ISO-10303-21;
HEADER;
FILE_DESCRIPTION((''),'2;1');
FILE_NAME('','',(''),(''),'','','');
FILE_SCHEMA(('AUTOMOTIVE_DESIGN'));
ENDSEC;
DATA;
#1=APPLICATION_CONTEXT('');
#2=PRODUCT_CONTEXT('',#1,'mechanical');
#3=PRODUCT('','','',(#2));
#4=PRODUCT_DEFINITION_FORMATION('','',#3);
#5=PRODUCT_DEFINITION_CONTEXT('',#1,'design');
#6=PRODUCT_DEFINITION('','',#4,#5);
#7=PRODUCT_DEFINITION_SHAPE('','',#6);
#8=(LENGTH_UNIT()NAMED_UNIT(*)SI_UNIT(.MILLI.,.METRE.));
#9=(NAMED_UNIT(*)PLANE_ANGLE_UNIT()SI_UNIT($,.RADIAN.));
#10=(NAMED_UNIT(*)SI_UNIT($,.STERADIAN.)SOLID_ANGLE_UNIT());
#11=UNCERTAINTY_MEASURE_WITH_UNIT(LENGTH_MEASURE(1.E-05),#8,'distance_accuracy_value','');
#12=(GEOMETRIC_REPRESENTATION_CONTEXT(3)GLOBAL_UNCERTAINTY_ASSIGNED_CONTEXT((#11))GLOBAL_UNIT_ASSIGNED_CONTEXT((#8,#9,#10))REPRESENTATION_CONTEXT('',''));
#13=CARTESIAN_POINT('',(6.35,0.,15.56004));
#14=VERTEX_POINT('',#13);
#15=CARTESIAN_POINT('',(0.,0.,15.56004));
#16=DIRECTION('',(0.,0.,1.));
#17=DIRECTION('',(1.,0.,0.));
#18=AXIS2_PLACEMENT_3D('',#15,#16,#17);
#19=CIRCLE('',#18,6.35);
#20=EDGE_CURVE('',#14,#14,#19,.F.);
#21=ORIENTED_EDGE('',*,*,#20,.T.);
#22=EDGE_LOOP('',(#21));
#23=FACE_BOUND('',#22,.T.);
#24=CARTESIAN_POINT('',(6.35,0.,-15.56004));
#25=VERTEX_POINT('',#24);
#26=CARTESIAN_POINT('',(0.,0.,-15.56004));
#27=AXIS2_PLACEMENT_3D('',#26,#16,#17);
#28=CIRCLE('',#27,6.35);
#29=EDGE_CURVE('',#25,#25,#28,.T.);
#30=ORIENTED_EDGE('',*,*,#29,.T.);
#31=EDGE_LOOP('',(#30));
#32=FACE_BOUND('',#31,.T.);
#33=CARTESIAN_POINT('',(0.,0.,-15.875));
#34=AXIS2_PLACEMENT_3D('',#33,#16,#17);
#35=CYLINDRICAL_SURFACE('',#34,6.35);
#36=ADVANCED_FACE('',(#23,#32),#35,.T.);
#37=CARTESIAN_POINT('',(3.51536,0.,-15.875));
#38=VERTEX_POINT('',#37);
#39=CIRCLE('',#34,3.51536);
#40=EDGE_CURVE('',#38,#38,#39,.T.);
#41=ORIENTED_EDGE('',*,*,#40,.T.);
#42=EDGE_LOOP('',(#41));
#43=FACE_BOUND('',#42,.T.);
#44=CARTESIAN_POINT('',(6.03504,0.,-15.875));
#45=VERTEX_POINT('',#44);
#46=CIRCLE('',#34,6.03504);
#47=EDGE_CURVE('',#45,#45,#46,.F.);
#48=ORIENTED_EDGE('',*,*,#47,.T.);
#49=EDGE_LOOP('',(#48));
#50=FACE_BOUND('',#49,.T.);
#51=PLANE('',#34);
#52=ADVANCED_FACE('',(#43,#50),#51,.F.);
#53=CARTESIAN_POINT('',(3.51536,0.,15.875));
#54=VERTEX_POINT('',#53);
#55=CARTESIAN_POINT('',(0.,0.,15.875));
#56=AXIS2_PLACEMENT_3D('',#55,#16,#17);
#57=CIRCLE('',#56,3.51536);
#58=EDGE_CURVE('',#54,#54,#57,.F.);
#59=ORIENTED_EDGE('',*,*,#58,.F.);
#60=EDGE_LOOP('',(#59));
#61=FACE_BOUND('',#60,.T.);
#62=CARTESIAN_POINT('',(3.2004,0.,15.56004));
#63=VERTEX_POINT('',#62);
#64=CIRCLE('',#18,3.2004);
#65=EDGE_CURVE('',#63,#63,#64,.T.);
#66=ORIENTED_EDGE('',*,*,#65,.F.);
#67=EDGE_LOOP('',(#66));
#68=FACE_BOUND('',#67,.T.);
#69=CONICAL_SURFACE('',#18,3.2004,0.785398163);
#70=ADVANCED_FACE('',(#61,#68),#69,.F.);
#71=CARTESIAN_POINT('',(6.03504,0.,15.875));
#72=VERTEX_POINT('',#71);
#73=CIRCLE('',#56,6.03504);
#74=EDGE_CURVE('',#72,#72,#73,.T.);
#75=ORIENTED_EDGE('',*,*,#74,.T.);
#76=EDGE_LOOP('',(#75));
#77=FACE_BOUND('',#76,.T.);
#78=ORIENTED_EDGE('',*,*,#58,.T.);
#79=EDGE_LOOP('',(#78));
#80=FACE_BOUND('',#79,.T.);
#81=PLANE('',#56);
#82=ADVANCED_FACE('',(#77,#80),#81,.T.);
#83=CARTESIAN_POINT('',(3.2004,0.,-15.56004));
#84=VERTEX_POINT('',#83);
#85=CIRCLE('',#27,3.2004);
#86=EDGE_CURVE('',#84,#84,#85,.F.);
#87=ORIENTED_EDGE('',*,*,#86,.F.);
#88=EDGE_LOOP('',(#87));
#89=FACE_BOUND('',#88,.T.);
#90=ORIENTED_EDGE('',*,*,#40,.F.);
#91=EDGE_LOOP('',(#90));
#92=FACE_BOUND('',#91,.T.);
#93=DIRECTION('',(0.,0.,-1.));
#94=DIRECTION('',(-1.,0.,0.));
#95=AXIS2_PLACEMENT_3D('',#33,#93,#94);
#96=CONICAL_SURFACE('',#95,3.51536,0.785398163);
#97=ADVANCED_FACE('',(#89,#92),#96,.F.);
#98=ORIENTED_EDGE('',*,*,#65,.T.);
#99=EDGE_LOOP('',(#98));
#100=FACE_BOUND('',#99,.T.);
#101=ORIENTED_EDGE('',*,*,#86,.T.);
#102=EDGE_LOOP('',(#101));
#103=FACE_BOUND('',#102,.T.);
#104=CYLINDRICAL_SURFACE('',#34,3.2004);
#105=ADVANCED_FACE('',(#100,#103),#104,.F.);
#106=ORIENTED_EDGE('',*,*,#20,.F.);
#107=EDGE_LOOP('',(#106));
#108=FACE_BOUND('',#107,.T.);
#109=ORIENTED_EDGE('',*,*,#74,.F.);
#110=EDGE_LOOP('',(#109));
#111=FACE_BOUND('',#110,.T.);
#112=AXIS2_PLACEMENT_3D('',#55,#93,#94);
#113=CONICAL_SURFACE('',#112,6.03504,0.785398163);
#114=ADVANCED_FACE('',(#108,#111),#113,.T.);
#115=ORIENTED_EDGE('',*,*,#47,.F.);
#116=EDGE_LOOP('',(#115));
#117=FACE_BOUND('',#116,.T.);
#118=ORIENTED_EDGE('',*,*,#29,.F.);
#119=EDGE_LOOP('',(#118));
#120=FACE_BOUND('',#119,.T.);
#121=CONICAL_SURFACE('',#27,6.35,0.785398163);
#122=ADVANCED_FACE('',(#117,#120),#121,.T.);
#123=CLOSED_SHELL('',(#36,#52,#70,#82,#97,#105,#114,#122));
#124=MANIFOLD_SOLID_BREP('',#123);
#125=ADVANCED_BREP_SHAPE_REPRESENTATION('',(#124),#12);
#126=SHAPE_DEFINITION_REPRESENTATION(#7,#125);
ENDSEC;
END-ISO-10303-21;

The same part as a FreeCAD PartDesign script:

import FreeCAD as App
import Part
import Sketcher

V = App.Vector
Q = App.Units.Quantity


def edges_at(feature, points):
    """Names of the edges that pass closest to the given points."""
    edges = feature.Shape.Edges
    near = lambda p: min(range(len(edges)), key=lambda i: edges[i].distToShape(Part.Vertex(*p))[0])
    return sorted({f"Edge{near(p) + 1}" for p in points})

doc = App.newDocument("Part")
params = doc.addObject("Spreadsheet::Sheet", "Params")
for row, (alias, value) in enumerate([
    ("sketch1_diameter", "0.5 in"),
    ("sketch1_diameter2", "0.252 in"),
    ("pad1_length", "0.625 in"),
    ("pad1_length2", "0.625 in"),
    ("chamfer_size", "0.0124 in"),
], start=1):
    params.set(f"A{row}", alias)
    params.set(f"B{row}", "=" + value)
    params.setAlias(f"B{row}", alias)

body = doc.addObject("PartDesign::Body", "Body")

# Sketch on XY plane
sketch1 = body.newObject("Sketcher::SketchObject", "Sketch")
sketch1.AttachmentSupport = (doc.getObject("XY_Plane"), [""])
sketch1.MapMode = "FlatFace"
sketch1.addGeometry(Part.Circle(V(0, 0, 0), V(0, 0, 1), 6.3), False)
sketch1.addGeometry(Part.Circle(V(0, 0, 0), V(0, 0, 1), 3.2), False)
sketch1.addConstraint(Sketcher.Constraint("Coincident", 0, 3, -1, 1))
sketch1.addConstraint(Sketcher.Constraint("Coincident", 1, 3, -1, 1))
sketch1.addConstraint(Sketcher.Constraint("Diameter", 0, Q("0.5 in")))
sketch1.addConstraint(Sketcher.Constraint("Diameter", 1, Q("0.252 in")))
sketch1.setExpression("Constraints[2]", "Params.sketch1_diameter")
sketch1.setExpression("Constraints[3]", "Params.sketch1_diameter2")
pad1 = body.newObject("PartDesign::Pad", "Pad")
pad1.Profile = sketch1
pad1.Type = "TwoLengths"
pad1.setExpression("Length", "Params.pad1_length")
pad1.setExpression("Length2", "Params.pad1_length2")
doc.recompute()

chamfer = body.newObject("PartDesign::Chamfer", "Chamfer")
chamfer.Base = (pad1, edges_at(pad1, [
    (-6.35, 0, -15.875),
    (-3.2, 0, -15.875),
    (-6.35, 0, 15.875),
    (-3.2, 0, 15.875),
]))
chamfer.setExpression("Size", "Params.chamfer_size")

doc.recompute()
